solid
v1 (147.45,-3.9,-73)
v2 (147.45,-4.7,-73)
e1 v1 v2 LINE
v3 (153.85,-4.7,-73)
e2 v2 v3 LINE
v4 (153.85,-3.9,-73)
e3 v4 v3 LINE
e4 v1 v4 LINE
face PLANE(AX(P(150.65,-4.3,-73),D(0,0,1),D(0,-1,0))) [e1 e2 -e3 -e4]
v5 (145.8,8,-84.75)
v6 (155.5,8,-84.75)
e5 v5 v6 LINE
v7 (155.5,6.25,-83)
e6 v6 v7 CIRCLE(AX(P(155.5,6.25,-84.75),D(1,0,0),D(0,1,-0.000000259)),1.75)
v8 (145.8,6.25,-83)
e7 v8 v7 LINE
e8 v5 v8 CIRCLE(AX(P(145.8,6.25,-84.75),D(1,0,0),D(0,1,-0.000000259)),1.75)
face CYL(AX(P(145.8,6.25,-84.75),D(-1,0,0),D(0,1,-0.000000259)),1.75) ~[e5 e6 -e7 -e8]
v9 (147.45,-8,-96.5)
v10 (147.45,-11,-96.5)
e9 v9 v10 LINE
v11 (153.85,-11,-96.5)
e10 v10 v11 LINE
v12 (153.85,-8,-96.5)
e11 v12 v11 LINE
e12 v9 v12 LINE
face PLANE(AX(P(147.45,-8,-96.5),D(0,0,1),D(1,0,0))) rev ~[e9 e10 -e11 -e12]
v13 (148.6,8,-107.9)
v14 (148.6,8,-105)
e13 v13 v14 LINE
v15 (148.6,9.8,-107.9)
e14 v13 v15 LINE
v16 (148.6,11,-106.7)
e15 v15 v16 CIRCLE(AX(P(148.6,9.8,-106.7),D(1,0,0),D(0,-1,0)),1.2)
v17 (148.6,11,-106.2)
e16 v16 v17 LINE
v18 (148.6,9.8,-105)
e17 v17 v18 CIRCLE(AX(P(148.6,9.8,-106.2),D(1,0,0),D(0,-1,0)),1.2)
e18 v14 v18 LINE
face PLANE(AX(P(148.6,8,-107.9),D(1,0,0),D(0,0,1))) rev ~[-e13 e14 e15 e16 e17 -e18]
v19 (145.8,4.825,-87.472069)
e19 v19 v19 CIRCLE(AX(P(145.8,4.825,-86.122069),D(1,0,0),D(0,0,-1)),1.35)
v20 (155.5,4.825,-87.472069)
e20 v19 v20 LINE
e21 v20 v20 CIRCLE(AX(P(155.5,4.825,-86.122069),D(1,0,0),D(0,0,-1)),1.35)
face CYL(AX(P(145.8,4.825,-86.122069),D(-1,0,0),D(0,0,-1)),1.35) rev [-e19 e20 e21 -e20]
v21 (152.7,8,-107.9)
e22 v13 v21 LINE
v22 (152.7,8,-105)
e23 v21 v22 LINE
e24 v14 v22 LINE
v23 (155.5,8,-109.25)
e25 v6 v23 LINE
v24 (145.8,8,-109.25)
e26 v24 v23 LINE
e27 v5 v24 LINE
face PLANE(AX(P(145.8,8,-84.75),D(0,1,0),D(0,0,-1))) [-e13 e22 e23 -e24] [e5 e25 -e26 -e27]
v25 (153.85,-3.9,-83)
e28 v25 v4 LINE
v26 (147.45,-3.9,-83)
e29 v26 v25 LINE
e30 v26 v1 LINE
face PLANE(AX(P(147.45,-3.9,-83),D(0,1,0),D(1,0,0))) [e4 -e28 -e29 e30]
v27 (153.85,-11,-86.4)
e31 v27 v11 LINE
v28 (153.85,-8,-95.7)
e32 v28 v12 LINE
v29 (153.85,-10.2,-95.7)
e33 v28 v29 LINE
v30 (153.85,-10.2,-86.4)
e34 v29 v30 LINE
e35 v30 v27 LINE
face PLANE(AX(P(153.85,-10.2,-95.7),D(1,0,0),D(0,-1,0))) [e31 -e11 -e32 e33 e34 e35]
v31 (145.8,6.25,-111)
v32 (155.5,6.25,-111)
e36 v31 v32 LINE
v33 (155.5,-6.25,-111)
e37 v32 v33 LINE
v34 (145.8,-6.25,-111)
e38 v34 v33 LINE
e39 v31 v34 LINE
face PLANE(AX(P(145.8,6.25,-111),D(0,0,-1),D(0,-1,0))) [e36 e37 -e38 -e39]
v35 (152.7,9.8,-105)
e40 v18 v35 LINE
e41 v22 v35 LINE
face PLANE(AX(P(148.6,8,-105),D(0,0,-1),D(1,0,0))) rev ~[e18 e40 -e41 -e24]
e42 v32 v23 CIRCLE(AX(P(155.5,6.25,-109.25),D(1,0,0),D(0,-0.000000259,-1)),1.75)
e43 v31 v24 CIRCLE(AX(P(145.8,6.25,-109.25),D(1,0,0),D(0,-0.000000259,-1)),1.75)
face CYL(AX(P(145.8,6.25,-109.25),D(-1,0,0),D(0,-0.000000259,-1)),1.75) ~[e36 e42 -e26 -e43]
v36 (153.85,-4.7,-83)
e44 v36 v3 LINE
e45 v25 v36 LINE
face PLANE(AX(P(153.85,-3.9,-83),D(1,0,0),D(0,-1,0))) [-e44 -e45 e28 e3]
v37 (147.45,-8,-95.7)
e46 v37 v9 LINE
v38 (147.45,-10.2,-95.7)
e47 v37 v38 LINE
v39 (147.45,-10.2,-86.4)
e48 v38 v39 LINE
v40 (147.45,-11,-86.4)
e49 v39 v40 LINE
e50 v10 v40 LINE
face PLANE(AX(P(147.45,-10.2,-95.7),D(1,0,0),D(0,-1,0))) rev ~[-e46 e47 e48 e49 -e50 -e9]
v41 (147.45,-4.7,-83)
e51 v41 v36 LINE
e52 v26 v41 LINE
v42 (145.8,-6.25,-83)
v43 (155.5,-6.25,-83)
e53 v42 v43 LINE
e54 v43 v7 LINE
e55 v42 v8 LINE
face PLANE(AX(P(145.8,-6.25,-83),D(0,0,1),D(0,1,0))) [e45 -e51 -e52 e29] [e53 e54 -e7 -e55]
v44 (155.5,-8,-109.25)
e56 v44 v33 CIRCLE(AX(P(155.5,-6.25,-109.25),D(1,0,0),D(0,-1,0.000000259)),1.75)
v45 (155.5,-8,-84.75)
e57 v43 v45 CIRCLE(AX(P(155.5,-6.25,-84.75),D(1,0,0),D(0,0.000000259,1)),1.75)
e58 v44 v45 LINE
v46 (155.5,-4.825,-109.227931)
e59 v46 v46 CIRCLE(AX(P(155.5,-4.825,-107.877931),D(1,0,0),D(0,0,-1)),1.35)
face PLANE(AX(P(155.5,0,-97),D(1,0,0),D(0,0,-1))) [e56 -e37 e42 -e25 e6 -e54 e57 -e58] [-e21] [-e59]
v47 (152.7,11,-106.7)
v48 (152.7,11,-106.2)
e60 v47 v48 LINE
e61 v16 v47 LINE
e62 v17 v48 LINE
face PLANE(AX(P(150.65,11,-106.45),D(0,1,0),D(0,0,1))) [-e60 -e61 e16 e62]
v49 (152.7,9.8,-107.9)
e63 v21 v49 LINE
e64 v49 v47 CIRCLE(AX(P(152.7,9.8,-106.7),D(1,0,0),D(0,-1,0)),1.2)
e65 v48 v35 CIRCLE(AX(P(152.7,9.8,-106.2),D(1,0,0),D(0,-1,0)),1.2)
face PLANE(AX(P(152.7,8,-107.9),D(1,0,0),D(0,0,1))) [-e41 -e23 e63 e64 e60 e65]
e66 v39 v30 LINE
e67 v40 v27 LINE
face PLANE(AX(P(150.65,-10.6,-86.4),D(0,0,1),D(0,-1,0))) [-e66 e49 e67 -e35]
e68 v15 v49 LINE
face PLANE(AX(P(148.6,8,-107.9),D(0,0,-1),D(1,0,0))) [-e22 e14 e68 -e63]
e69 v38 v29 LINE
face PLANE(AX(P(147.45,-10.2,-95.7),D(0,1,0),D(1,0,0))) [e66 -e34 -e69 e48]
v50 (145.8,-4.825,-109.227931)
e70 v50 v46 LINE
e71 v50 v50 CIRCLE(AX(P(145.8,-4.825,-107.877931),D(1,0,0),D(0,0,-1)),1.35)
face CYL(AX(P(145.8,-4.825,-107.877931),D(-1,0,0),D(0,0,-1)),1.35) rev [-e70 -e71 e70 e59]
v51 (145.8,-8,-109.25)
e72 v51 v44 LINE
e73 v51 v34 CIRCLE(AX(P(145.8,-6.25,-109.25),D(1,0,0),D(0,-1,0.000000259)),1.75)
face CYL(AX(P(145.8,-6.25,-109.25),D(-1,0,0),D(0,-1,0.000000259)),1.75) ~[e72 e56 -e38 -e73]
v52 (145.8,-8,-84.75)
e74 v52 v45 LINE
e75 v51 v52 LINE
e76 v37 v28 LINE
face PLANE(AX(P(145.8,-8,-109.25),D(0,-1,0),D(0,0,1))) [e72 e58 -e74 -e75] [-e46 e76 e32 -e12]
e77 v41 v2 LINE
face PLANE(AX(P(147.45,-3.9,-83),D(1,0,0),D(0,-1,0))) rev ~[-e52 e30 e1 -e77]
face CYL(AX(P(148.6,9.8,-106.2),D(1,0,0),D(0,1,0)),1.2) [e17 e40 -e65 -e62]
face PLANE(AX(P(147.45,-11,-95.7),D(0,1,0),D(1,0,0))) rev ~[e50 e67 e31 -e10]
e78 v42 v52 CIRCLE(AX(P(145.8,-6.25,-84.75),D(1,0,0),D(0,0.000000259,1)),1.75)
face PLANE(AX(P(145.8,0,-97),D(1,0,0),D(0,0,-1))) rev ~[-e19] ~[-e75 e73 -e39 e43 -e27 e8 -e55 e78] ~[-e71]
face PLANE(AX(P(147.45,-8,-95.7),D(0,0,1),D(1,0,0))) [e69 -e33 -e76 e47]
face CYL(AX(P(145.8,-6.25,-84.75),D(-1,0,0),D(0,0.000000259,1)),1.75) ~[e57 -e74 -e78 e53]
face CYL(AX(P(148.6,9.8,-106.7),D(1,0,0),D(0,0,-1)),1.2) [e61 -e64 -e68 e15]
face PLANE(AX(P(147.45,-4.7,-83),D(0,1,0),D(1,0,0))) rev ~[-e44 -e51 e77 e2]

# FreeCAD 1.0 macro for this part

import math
import FreeCAD as App
import Part
import Sketcher

V = App.Vector
Q = App.Units.Quantity


def edges_at(feature, points):
    """Names of the edges that pass closest to the given points."""
    edges = feature.Shape.Edges
    near = lambda p: min(range(len(edges)), key=lambda i: edges[i].distToShape(Part.Vertex(*p))[0])
    return sorted({f"Edge{near(p) + 1}" for p in points})


def add_polygon(sketch, points):
    """Adds a closed chain of lines whose ends are joined by coincident constraints."""
    first, n = sketch.GeometryCount, len(points)
    for a, b in zip(points, points[1:] + points[:1]):
        sketch.addGeometry(Part.LineSegment(App.Vector(*a, 0), App.Vector(*b, 0)), False)
    for i in range(n):
        sketch.addConstraint(Sketcher.Constraint("Coincident", first + i, 2, first + (i + 1) % n, 1))

doc = App.newDocument("Part")
body = doc.addObject("PartDesign::Body", "Body")

sketch1 = body.newObject("Sketcher::SketchObject", "Sketch")
sketch1.AttachmentSupport = (doc.getObject("XY_Plane"), [""])
sketch1.MapMode = "FlatFace"
sketch1.addGeometry([
    Part.ArcOfCircle(Part.Circle(V(-12.3, 6.3, 0), V(0, 0, 1), 1.7), math.radians(90), math.radians(180)),
    Part.LineSegment(V(-14, 6.2, 0), V(-14, -6.2, 0)),
    Part.ArcOfCircle(Part.Circle(V(-12.3, -6.3, 0), V(0, 0, 1), 1.7), math.radians(180), math.radians(270)),
    Part.LineSegment(V(-12.2, -8, 0), V(12.2, -8, 0)),
    Part.ArcOfCircle(Part.Circle(V(12.3, -6.3, 0), V(0, 0, 1), 1.7), math.radians(-90), math.radians(0)),
    Part.LineSegment(V(14, -6.2, 0), V(14, 6.2, 0)),
    Part.ArcOfCircle(Part.Circle(V(12.3, 6.3, 0), V(0, 0, 1), 1.7), math.radians(0), math.radians(90)),
    Part.LineSegment(V(12.2, 8, 0), V(-12.2, 8, 0)),
    Part.Circle(V(10.9, -4.8, 0), V(0, 0, 1), 1.4),
    Part.Circle(V(-10.9, 4.8, 0), V(0, 0, 1), 1.4),
], False)
sketch1.addConstraint([
    Sketcher.Constraint("Tangent", 0, 2, 1, 1),
    Sketcher.Constraint("Tangent", 1, 2, 2, 1),
    Sketcher.Constraint("Tangent", 2, 2, 3, 1),
    Sketcher.Constraint("Tangent", 3, 2, 4, 1),
    Sketcher.Constraint("Tangent", 4, 2, 5, 1),
    Sketcher.Constraint("Tangent", 5, 2, 6, 1),
    Sketcher.Constraint("Tangent", 6, 2, 7, 1),
    Sketcher.Constraint("Tangent", 7, 2, 0, 1),
    Sketcher.Constraint("Vertical", 1),
    Sketcher.Constraint("Horizontal", 3),
    Sketcher.Constraint("Vertical", 5),
    Sketcher.Constraint("Horizontal", 7),
    Sketcher.Constraint("Equal", 0, 2),
    Sketcher.Constraint("Equal", 2, 4),
    Sketcher.Constraint("Equal", 4, 6),
    Sketcher.Constraint("Equal", 8, 9),
    Sketcher.Constraint("Symmetric", 0, 3, 4, 3, -1, 1),
    Sketcher.Constraint("Symmetric", 8, 3, 9, 3, -1, 1),
    Sketcher.Constraint("Diameter", 8, Q("2.7 mm")),
    Sketcher.Constraint("Radius", 0, Q("1.75 mm")),
    Sketcher.Constraint("DistanceX", 3, 1, 3, 2, Q("24.5 mm")),
    Sketcher.Constraint("DistanceY", 1, 2, 1, 1, Q("12.5 mm")),
    Sketcher.Constraint("DistanceY", 8, 3, 9, 3, Q("9.65 mm")),
    Sketcher.Constraint("DistanceX", -1, 1, 8, 3, Q("10.877931 mm")),
])
pad1 = body.newObject("PartDesign::Pad", "Pad")
pad1.Profile = sketch1
pad1.Length = 9.7

sketch2 = body.newObject("Sketcher::SketchObject", "Sketch001")
sketch2.AttachmentSupport = (doc.getObject("XZ_Plane"), [""])
sketch2.MapMode = "FlatFace"
sketch2.AttachmentOffset = App.Placement(V(0, 0, -8), App.Rotation())
add_polygon(sketch2, [(10.9, 6.9), (10.9, 2.8), (8, 2.8), (8, 6.9)])
sketch2.addConstraint([
    Sketcher.Constraint("Vertical", 0),
    Sketcher.Constraint("Horizontal", 1),
    Sketcher.Constraint("Vertical", 2),
    Sketcher.Constraint("Horizontal", 3),
    Sketcher.Constraint("DistanceX", 1, 2, 1, 1, Q("2.9 mm")),
    Sketcher.Constraint("DistanceY", 0, 2, 0, 1, Q("4.1 mm")),
    Sketcher.Constraint("DistanceX", -1, 1, 1, 2, Q("8 mm")),
    Sketcher.Constraint("DistanceY", -1, 1, 0, 2, Q("2.8 mm")),
])
pad2 = body.newObject("PartDesign::Pad", "Pad001")
pad2.Profile = sketch2
pad2.Length = 3
pad2.Reversed = True

sketch3 = body.newObject("Sketcher::SketchObject", "Sketch002")
sketch3.AttachmentSupport = (doc.getObject("YZ_Plane"), [""])
sketch3.MapMode = "FlatFace"
sketch3.AttachmentOffset = App.Placement(V(0, 0, -14), App.Rotation())
add_polygon(sketch3, [(-3.9, 8.1), (-3.9, 1.6), (-4.7, 1.6), (-4.7, 8.1)])
sketch3.addConstraint([
    Sketcher.Constraint("Vertical", 0),
    Sketcher.Constraint("Horizontal", 1),
    Sketcher.Constraint("Vertical", 2),
    Sketcher.Constraint("Horizontal", 3),
    Sketcher.Constraint("DistanceX", 1, 2, 1, 1, Q("0.8 mm")),
    Sketcher.Constraint("DistanceY", 0, 2, 0, 1, Q("6.4 mm")),
    Sketcher.Constraint("DistanceX", 0, 2, -1, 1, Q("3.9 mm")),
    Sketcher.Constraint("DistanceY", -1, 1, 0, 2, Q("1.65 mm")),
])
pad3 = body.newObject("PartDesign::Pad", "Pad002")
pad3.Profile = sketch3
pad3.Length = 10
pad3.Reversed = True

sketch4 = body.newObject("Sketcher::SketchObject", "Sketch003")
sketch4.AttachmentSupport = (doc.getObject("XZ_Plane"), [""])
sketch4.MapMode = "FlatFace"
sketch4.AttachmentOffset = App.Placement(V(0, 0, 8), App.Rotation())
add_polygon(sketch4, [(-1.3, 8.1), (-1.3, 1.6), (-0.5, 1.6), (-0.5, 8.1)])
sketch4.addConstraint([
    Sketcher.Constraint("Vertical", 0),
    Sketcher.Constraint("Horizontal", 1),
    Sketcher.Constraint("Vertical", 2),
    Sketcher.Constraint("Horizontal", 3),
    Sketcher.Constraint("DistanceX", 1, 1, 1, 2, Q("0.8 mm")),
    Sketcher.Constraint("DistanceY", 0, 2, 0, 1, Q("6.4 mm")),
    Sketcher.Constraint("DistanceX", 0, 2, -1, 1, Q("1.3 mm")),
    Sketcher.Constraint("DistanceY", -1, 1, 0, 2, Q("1.65 mm")),
])
pad4 = body.newObject("PartDesign::Pad", "Pad003")
pad4.Profile = sketch4
pad4.Length = 3

sketch5 = body.newObject("Sketcher::SketchObject", "Sketch004")
sketch5.AttachmentSupport = (doc.getObject("YZ_Plane"), [""])
sketch5.MapMode = "FlatFace"
sketch5.AttachmentOffset = App.Placement(V(0, 0, -1.3), App.Rotation())
add_polygon(sketch5, [(-10.2, 8.1), (-10.2, 1.6), (-11, 1.6), (-11, 8.1)])
sketch5.addConstraint([
    Sketcher.Constraint("Vertical", 0),
    Sketcher.Constraint("Horizontal", 1),
    Sketcher.Constraint("Vertical", 2),
    Sketcher.Constraint("Horizontal", 3),
    Sketcher.Constraint("DistanceX", 1, 2, 1, 1, Q("0.8 mm")),
    Sketcher.Constraint("DistanceY", 0, 2, 0, 1, Q("6.4 mm")),
    Sketcher.Constraint("DistanceX", 1, 2, -1, 1, Q("11 mm")),
    Sketcher.Constraint("DistanceY", -1, 1, 0, 2, Q("1.65 mm")),
])
pad5 = body.newObject("PartDesign::Pad", "Pad004")
pad5.Profile = sketch5
pad5.Length = 9.3
pad5.Reversed = True
doc.recompute()

fillet = body.newObject("PartDesign::Fillet", "Fillet")
fillet.Base = (pad5, edges_at(pad5, [(10.9, 11, 4.85), (8, 11, 4.85)]))
fillet.Radius = 1.2
body2 = doc.addObject("PartDesign::Body", "Body001")
doc.recompute()

body.Placement = App.Placement(V(145.8, 0, -97), App.Rotation(V(0, 1, 0), 90))
boolean = body2.newObject("PartDesign::Boolean", "Boolean")
boolean.Type = "Fuse"
boolean.addObjects([body])

doc.recompute()
